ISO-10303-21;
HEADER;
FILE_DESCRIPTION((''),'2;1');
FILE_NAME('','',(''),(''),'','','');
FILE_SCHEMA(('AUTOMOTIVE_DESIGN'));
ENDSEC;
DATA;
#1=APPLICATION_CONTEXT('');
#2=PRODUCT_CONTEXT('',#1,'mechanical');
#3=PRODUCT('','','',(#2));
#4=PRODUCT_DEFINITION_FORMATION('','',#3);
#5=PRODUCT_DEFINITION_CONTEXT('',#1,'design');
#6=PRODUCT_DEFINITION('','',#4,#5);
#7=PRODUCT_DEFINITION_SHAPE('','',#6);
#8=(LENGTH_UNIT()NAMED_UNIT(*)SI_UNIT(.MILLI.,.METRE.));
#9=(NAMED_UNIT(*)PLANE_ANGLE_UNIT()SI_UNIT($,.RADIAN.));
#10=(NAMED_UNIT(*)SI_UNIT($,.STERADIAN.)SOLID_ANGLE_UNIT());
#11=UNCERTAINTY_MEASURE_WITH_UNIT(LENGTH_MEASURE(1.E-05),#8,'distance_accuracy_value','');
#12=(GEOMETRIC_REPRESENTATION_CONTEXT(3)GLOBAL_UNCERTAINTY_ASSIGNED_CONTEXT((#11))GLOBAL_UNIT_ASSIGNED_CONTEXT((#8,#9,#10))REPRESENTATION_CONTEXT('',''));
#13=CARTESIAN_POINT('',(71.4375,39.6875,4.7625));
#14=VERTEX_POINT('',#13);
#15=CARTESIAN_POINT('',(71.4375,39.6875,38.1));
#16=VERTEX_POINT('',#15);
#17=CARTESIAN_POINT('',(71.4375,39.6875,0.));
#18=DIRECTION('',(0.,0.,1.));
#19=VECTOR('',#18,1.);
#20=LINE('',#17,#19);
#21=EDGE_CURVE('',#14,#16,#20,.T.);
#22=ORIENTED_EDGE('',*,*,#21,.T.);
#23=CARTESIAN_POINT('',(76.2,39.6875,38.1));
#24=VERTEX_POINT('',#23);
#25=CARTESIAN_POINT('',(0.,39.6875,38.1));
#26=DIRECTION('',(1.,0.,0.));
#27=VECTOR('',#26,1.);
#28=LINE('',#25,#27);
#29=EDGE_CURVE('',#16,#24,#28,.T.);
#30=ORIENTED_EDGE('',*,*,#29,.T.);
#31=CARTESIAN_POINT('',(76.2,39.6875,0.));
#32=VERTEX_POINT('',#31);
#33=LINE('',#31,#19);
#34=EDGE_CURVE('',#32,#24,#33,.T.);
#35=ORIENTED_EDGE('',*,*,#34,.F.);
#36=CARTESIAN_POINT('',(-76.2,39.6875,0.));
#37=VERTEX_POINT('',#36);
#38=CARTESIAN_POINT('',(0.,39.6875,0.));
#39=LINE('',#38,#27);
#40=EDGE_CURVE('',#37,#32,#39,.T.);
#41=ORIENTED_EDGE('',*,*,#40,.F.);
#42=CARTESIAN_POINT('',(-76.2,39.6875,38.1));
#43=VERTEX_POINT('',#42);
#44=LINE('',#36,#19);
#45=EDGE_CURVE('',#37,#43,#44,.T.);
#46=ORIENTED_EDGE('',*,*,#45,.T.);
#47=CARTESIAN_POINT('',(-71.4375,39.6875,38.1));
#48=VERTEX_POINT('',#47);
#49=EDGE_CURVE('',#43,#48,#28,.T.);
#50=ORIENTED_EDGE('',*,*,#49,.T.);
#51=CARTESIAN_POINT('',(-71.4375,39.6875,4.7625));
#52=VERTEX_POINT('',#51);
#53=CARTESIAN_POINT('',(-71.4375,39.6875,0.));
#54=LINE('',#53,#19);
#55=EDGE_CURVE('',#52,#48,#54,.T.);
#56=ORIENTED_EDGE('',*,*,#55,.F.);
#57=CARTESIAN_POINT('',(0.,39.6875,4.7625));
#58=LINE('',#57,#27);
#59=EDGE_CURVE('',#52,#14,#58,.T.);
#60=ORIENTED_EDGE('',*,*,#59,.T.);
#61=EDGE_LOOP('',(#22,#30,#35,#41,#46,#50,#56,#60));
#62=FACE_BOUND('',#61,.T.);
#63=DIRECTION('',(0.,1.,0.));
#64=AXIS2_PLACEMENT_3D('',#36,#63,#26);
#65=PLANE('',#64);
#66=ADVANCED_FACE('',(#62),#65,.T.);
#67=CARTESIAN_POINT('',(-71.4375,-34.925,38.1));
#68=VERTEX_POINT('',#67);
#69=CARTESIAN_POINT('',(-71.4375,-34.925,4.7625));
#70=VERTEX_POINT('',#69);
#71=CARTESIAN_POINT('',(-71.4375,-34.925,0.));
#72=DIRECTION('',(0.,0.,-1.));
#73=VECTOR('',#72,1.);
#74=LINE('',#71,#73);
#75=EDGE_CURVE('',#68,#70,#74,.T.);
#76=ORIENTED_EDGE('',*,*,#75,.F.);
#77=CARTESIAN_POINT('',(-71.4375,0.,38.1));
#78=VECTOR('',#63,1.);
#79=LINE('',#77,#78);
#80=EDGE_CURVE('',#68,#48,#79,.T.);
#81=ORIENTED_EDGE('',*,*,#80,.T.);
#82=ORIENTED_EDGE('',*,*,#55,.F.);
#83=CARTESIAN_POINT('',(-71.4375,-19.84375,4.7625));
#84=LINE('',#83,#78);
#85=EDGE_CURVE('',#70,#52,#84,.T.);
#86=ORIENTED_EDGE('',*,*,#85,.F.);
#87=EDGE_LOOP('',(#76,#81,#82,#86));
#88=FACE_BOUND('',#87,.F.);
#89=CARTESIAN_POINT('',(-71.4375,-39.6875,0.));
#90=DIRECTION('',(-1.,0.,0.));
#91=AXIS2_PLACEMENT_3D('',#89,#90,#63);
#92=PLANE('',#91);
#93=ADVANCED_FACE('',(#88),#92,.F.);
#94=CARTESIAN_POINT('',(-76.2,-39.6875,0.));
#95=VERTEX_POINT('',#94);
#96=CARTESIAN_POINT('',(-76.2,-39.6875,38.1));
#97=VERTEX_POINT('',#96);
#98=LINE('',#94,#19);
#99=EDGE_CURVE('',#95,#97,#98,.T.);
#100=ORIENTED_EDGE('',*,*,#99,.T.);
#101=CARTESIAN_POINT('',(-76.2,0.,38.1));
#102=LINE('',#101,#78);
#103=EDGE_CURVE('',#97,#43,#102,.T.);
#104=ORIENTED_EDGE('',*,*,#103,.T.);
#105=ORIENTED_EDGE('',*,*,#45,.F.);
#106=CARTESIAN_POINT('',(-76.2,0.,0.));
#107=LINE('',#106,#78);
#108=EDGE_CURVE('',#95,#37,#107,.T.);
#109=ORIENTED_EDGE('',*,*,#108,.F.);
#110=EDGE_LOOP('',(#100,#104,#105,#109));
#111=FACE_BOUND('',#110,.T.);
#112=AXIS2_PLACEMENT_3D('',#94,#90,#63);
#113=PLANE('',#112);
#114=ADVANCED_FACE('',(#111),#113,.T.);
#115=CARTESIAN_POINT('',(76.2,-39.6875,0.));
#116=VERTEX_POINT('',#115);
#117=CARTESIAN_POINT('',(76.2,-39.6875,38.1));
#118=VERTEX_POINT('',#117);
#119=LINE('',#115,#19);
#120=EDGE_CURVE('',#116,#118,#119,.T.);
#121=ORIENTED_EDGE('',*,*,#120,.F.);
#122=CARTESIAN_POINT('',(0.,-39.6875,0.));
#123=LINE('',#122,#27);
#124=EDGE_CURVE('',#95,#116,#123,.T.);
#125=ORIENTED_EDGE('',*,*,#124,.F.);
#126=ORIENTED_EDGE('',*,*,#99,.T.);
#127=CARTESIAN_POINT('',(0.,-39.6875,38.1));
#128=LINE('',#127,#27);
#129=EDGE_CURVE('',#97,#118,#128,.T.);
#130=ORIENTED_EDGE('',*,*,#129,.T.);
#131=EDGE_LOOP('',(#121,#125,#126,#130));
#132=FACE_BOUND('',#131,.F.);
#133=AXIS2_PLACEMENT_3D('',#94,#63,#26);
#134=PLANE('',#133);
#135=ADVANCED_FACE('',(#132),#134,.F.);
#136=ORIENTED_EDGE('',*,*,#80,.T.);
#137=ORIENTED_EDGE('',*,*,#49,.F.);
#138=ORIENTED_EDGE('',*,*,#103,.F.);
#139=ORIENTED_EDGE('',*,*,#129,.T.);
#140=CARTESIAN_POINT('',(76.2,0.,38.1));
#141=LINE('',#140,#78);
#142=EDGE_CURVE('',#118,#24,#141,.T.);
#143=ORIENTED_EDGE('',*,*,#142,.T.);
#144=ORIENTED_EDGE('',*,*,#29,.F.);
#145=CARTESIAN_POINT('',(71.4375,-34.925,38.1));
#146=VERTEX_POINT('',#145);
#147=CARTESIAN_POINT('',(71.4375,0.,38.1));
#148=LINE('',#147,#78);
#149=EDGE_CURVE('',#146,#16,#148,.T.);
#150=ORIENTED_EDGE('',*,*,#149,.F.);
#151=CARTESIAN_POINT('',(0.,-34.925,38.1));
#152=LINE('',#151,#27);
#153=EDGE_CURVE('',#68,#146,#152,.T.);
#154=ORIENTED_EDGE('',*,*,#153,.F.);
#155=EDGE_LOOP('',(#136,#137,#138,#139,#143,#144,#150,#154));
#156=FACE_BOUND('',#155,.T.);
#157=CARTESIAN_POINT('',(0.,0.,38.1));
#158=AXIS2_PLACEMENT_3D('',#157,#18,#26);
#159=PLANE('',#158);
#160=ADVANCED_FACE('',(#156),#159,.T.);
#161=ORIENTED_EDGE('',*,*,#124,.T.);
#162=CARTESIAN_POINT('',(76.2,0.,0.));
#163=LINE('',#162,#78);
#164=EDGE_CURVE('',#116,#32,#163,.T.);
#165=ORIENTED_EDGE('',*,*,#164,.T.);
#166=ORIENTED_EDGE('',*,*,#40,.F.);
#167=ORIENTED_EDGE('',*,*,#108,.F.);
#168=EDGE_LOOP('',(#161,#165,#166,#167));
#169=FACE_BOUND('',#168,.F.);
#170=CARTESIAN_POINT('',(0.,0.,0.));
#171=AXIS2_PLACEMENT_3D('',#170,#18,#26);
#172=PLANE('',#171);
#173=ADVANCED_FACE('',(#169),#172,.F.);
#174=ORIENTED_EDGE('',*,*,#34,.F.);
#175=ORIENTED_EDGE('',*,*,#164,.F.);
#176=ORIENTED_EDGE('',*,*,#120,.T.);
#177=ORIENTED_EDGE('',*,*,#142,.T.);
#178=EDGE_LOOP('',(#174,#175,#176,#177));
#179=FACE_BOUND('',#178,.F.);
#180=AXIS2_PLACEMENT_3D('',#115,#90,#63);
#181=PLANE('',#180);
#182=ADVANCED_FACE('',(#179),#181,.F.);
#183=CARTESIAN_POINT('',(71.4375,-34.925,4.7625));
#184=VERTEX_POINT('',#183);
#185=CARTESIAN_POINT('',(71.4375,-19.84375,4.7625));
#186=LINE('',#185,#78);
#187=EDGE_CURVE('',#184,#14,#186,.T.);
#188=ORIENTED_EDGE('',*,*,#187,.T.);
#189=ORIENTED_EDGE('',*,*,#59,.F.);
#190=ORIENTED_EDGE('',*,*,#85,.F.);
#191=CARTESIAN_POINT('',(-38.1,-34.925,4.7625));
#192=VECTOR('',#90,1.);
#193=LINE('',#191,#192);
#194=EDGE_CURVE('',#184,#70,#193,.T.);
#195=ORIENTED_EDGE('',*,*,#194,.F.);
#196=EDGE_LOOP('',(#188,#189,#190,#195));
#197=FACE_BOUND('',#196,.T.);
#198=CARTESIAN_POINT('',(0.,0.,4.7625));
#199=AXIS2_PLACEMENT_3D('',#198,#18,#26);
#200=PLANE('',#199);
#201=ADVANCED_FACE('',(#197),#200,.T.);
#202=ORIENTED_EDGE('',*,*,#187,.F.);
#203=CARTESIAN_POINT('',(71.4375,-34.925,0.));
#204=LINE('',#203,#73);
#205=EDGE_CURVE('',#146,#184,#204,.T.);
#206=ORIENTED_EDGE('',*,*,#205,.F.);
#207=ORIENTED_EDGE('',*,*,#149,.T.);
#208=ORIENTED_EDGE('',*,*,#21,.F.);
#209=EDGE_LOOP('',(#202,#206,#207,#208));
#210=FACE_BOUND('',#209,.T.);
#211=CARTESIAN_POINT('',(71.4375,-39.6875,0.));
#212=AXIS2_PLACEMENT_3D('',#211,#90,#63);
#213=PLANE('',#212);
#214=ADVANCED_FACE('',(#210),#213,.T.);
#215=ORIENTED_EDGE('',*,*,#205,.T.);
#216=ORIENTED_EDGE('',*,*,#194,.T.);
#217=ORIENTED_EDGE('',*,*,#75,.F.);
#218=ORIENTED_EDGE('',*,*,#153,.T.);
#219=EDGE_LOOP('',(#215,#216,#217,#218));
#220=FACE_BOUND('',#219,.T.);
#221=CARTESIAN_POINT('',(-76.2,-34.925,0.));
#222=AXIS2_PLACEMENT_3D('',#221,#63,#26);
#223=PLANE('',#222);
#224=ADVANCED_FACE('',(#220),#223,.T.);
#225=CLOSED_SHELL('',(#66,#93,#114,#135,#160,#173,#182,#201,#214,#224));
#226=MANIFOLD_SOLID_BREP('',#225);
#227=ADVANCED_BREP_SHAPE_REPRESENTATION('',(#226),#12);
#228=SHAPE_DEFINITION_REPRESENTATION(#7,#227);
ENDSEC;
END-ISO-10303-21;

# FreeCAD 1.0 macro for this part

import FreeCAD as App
import Part
import Sketcher
Q = App.Units.Quantity


def faces_at(feature, points):
    """Names of the faces that lie closest to the given points."""
    faces = feature.Shape.Faces
    near = lambda p: min(range(len(faces)), key=lambda i: faces[i].distToShape(Part.Vertex(*p))[0])
    return sorted({f"Face{near(p) + 1}" for p in points})

doc = App.newDocument("Part")
params = doc.addObject("Spreadsheet::Sheet", "Params")
for row, (alias, value) in enumerate([
    ("sketch1_width", "6 in"),
    ("sketch1_height", "3.125 in"),
    ("pad1_length", "1.5 in"),
    ("thickness_wall", "0.1875 in"),
], start=1):
    params.set(f"A{row}", alias)
    params.set(f"B{row}", "=" + value)
    params.setAlias(f"B{row}", alias)

body = doc.addObject("PartDesign::Body", "Body")

# Sketch on XY plane
sketch1 = body.newObject("Sketcher::SketchObject", "Sketch")
sketch1.AttachmentSupport = (doc.getObject("XY_Plane"), [""])
sketch1.MapMode = "FlatFace"
sketch1.addGeometry(Part.LineSegment(App.Vector(-76, 40, 0), App.Vector(-76, -40, 0)), False)
sketch1.addGeometry(Part.LineSegment(App.Vector(-76, -40, 0), App.Vector(76, -40, 0)), False)
sketch1.addGeometry(Part.LineSegment(App.Vector(76, -40, 0), App.Vector(76, 40, 0)), False)
sketch1.addGeometry(Part.LineSegment(App.Vector(76, 40, 0), App.Vector(-76, 40, 0)), False)
sketch1.addConstraint(Sketcher.Constraint("Coincident", 0, 2, 1, 1))
sketch1.addConstraint(Sketcher.Constraint("Coincident", 1, 2, 2, 1))
sketch1.addConstraint(Sketcher.Constraint("Coincident", 2, 2, 3, 1))
sketch1.addConstraint(Sketcher.Constraint("Coincident", 3, 2, 0, 1))
sketch1.addConstraint(Sketcher.Constraint("Vertical", 0))
sketch1.addConstraint(Sketcher.Constraint("Horizontal", 1))
sketch1.addConstraint(Sketcher.Constraint("Vertical", 2))
sketch1.addConstraint(Sketcher.Constraint("Horizontal", 3))
sketch1.addConstraint(Sketcher.Constraint("Symmetric", 0, 2, 2, 2, -1, 1))
sketch1.addConstraint(Sketcher.Constraint("DistanceX", 1, 1, 1, 2, Q("6 in")))
sketch1.addConstraint(Sketcher.Constraint("DistanceY", 0, 2, 0, 1, Q("3.125 in")))
sketch1.setExpression("Constraints[9]", "Params.sketch1_width")
sketch1.setExpression("Constraints[10]", "Params.sketch1_height")
pad1 = body.newObject("PartDesign::Pad", "Pad")
pad1.Profile = sketch1
pad1.setExpression("Length", "Params.pad1_length")
doc.recompute()

thickness = body.newObject("PartDesign::Thickness", "Thickness")
thickness.Base = (pad1, faces_at(pad1, [(0, 0, 38.1), (0, 39.688, 19.05)]))
thickness.setExpression("Value", "Params.thickness_wall")
thickness.Reversed = True
thickness.Join = "Arc"

doc.recompute()
